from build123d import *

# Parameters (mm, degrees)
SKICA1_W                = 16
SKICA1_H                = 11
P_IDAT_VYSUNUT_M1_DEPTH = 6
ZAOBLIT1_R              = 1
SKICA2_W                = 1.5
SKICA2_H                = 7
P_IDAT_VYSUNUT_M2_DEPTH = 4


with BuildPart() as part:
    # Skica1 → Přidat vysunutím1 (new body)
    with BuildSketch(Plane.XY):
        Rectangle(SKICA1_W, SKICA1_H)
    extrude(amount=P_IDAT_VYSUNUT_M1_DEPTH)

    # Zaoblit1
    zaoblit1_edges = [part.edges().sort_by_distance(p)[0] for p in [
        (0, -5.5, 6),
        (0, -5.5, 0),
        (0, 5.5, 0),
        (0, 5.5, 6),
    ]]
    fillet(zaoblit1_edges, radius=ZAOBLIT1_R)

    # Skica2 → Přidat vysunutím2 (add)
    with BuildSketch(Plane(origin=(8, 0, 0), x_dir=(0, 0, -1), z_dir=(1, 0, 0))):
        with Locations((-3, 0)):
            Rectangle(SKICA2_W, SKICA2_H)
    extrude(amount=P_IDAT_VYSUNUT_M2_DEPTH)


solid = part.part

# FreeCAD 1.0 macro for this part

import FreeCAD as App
import Part
import Sketcher

V = App.Vector


def edges_at(feature, points):
    """Names of the edges that pass closest to the given points."""
    edges = feature.Shape.Edges
    near = lambda p: min(range(len(edges)), key=lambda i: edges[i].distToShape(Part.Vertex(*p))[0])
    return sorted({f"Edge{near(p) + 1}" for p in points})

doc = App.newDocument("Part")
body = doc.addObject("PartDesign::Body", "Body")

# Sketch on XY plane
sketch1 = body.newObject("Sketcher::SketchObject", "Sketch")
sketch1.AttachmentSupport = (doc.getObject("XY_Plane"), [""])
sketch1.MapMode = "FlatFace"
sketch1.addGeometry(Part.LineSegment(V(-8, 5.5, 0), V(-8, -5.5, 0)), False)
sketch1.addGeometry(Part.LineSegment(V(-8, -5.5, 0), V(8, -5.5, 0)), False)
sketch1.addGeometry(Part.LineSegment(V(8, -5.5, 0), V(8, 5.5, 0)), False)
sketch1.addGeometry(Part.LineSegment(V(8, 5.5, 0), V(-8, 5.5, 0)), False)
sketch1.addConstraint(Sketcher.Constraint("Coincident", 0, 2, 1, 1))
sketch1.addConstraint(Sketcher.Constraint("Coincident", 1, 2, 2, 1))
sketch1.addConstraint(Sketcher.Constraint("Coincident", 2, 2, 3, 1))
sketch1.addConstraint(Sketcher.Constraint("Coincident", 3, 2, 0, 1))
sketch1.addConstraint(Sketcher.Constraint("Vertical", 0))
sketch1.addConstraint(Sketcher.Constraint("Horizontal", 1))
sketch1.addConstraint(Sketcher.Constraint("Vertical", 2))
sketch1.addConstraint(Sketcher.Constraint("Horizontal", 3))
sketch1.addConstraint(Sketcher.Constraint("Symmetric", 0, 2, 2, 2, -1, 1))
sketch1.addConstraint(Sketcher.Constraint("DistanceX", 1, 1, 1, 2, 16.0))
sketch1.addConstraint(Sketcher.Constraint("DistanceY", 0, 2, 0, 1, 11.0))
pad1 = body.newObject("PartDesign::Pad", "Pad")
pad1.Profile = sketch1
pad1.Length = 6
doc.recompute()

fillet = body.newObject("PartDesign::Fillet", "Fillet")
fillet.Base = (pad1, edges_at(pad1, [
    (0, -5.5, 6),
    (0, -5.5, 0),
    (0, 5.5, 0),
    (0, 5.5, 6),
]))
fillet.Radius = 1

# Sketch on YZ plane
sketch2 = body.newObject("Sketcher::SketchObject", "Sketch001")
sketch2.AttachmentSupport = (doc.getObject("YZ_Plane"), [""])
sketch2.MapMode = "FlatFace"
sketch2.AttachmentOffset = App.Placement(V(0, 0, 8), App.Rotation())
sketch2.addGeometry(Part.LineSegment(V(3.5, 3.75, 0), V(-3.5, 3.75, 0)), False)
sketch2.addGeometry(Part.LineSegment(V(-3.5, 3.75, 0), V(-3.5, 2.25, 0)), False)
sketch2.addGeometry(Part.LineSegment(V(-3.5, 2.25, 0), V(3.5, 2.25, 0)), False)
sketch2.addGeometry(Part.LineSegment(V(3.5, 2.25, 0), V(3.5, 3.75, 0)), False)
sketch2.addConstraint(Sketcher.Constraint("Coincident", 0, 2, 1, 1))
sketch2.addConstraint(Sketcher.Constraint("Coincident", 1, 2, 2, 1))
sketch2.addConstraint(Sketcher.Constraint("Coincident", 2, 2, 3, 1))
sketch2.addConstraint(Sketcher.Constraint("Coincident", 3, 2, 0, 1))
sketch2.addConstraint(Sketcher.Constraint("Horizontal", 0))
sketch2.addConstraint(Sketcher.Constraint("Vertical", 1))
sketch2.addConstraint(Sketcher.Constraint("Horizontal", 2))
sketch2.addConstraint(Sketcher.Constraint("Vertical", 3))
sketch2.addConstraint(Sketcher.Constraint("DistanceX", 0, 2, 0, 1, 7.0))
sketch2.addConstraint(Sketcher.Constraint("DistanceY", 1, 2, 1, 1, 1.5))
sketch2.addConstraint(Sketcher.Constraint("DistanceX", 0, 2, -1, 1, 3.5))
sketch2.addConstraint(Sketcher.Constraint("DistanceY", -1, 1, 0, 2, 3.75))
pad2 = body.newObject("PartDesign::Pad", "Pad001")
pad2.Profile = sketch2
pad2.Length = 4

doc.recompute()
